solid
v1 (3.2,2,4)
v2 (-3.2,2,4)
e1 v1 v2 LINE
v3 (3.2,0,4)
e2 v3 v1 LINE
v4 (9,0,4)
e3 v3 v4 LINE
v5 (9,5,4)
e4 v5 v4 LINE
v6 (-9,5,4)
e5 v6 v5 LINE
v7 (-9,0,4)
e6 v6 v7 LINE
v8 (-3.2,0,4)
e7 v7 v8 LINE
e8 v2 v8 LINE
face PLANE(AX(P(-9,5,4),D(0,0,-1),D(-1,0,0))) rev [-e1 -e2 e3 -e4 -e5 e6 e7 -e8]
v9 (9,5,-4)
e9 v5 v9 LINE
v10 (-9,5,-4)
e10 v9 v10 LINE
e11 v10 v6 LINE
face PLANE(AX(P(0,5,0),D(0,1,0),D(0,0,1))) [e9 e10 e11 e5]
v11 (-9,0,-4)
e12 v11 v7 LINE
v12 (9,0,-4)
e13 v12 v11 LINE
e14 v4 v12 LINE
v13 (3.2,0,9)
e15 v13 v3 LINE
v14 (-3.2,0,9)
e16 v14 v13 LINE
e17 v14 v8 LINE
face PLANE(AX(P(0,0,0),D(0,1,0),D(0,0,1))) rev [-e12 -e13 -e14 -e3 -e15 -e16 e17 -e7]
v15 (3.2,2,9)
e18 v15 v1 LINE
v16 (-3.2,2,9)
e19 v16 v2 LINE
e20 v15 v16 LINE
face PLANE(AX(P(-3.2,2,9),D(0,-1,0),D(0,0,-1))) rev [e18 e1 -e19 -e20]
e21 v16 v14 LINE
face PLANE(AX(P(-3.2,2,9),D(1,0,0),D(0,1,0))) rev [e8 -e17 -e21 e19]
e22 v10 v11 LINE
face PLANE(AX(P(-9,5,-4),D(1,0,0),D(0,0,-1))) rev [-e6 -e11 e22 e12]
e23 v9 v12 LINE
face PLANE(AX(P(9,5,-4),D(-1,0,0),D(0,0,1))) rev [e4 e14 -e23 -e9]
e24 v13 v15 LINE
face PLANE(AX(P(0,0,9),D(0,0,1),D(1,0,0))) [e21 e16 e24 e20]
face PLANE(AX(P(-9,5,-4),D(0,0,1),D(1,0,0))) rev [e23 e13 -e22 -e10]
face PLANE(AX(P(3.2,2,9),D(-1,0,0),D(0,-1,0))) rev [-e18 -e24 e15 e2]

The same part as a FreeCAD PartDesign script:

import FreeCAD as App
import Part
import Sketcher
from FreeCAD import Vector
Q = App.Units.Quantity


def add_polygon(sketch, points):
    """Adds a closed chain of lines whose ends are joined by coincident constraints."""
    first, n = sketch.GeometryCount, len(points)
    for a, b in zip(points, points[1:] + points[:1]):
        sketch.addGeometry(Part.LineSegment(App.Vector(*a, 0), App.Vector(*b, 0)), False)
    for i in range(n):
        sketch.addConstraint(Sketcher.Constraint("Coincident", first + i, 2, first + (i + 1) % n, 1))

doc = App.newDocument("Part")
params = doc.addObject("Spreadsheet::Sheet", "Params")
for row, (alias, value) in enumerate([
    ("sketch1_width", "18 mm"),
    ("sketch1_height", "8 mm"),
    ("pad1_length", "5 mm"),
    ("sketch2_height", "2 mm"),
    ("sketch2_width", "6.4 mm"),
    ("pad2_length", "5 mm"),
], start=1):
    params.set(f"A{row}", alias)
    params.set(f"B{row}", "=" + value)
    params.setAlias(f"B{row}", alias)

body = doc.addObject("PartDesign::Body", "Body")

sketch1 = doc.addObject("Sketcher::SketchObject", "Sketch")
body.addObject(sketch1)
sketch1.AttachmentSupport = (doc.XZ_Plane, [""])
sketch1.MapMode = "FlatFace"
add_polygon(sketch1, [(-9, -4), (-9, 4), (9, 4), (9, -4)])
sketch1.addConstraint([
    Sketcher.Constraint("Vertical", 0),
    Sketcher.Constraint("Horizontal", 1),
    Sketcher.Constraint("Vertical", 2),
    Sketcher.Constraint("Horizontal", 3),
    Sketcher.Constraint("Symmetric", 0, 2, 2, 2, -1, 1),
    Sketcher.Constraint("DistanceX", 1, 1, 1, 2, Q("18 mm")),
    Sketcher.Constraint("DistanceY", 0, 1, 0, 2, Q("8 mm")),
])
sketch1.setExpression("Constraints[9]", "Params.sketch1_width")
sketch1.setExpression("Constraints[10]", "Params.sketch1_height")
pad1 = doc.addObject("PartDesign::Pad", "Pad")
body.addObject(pad1)
pad1.Profile = sketch1
pad1.setExpression("Length", "Params.pad1_length")
pad1.Reversed = True

sketch2 = doc.addObject("Sketcher::SketchObject", "Sketch001")
body.addObject(sketch2)
sketch2.AttachmentSupport = (doc.XY_Plane, [""])
sketch2.MapMode = "FlatFace"
sketch2.AttachmentOffset = App.Placement(Vector(0, 0, 4), App.Rotation())
add_polygon(sketch2, [(-3.2, 2), (-3.2, 0), (3.2, 0), (3.2, 2)])
sketch2.addConstraint([
    Sketcher.Constraint("Vertical", 0),
    Sketcher.Constraint("Horizontal", 1),
    Sketcher.Constraint("Vertical", 2),
    Sketcher.Constraint("Horizontal", 3),
    Sketcher.Constraint("Symmetric", 0, 2, 1, 2, -1, 1),
    Sketcher.Constraint("DistanceY", 0, 2, 0, 1, Q("2 mm")),
    Sketcher.Constraint("DistanceX", 1, 1, 1, 2, Q("6.4 mm")),
])
sketch2.setExpression("Constraints[9]", "Params.sketch2_height")
sketch2.setExpression("Constraints[10]", "Params.sketch2_width")
pad2 = doc.addObject("PartDesign::Pad", "Pad001")
body.addObject(pad2)
pad2.Profile = sketch2
pad2.setExpression("Length", "Params.pad2_length")

doc.recompute()
